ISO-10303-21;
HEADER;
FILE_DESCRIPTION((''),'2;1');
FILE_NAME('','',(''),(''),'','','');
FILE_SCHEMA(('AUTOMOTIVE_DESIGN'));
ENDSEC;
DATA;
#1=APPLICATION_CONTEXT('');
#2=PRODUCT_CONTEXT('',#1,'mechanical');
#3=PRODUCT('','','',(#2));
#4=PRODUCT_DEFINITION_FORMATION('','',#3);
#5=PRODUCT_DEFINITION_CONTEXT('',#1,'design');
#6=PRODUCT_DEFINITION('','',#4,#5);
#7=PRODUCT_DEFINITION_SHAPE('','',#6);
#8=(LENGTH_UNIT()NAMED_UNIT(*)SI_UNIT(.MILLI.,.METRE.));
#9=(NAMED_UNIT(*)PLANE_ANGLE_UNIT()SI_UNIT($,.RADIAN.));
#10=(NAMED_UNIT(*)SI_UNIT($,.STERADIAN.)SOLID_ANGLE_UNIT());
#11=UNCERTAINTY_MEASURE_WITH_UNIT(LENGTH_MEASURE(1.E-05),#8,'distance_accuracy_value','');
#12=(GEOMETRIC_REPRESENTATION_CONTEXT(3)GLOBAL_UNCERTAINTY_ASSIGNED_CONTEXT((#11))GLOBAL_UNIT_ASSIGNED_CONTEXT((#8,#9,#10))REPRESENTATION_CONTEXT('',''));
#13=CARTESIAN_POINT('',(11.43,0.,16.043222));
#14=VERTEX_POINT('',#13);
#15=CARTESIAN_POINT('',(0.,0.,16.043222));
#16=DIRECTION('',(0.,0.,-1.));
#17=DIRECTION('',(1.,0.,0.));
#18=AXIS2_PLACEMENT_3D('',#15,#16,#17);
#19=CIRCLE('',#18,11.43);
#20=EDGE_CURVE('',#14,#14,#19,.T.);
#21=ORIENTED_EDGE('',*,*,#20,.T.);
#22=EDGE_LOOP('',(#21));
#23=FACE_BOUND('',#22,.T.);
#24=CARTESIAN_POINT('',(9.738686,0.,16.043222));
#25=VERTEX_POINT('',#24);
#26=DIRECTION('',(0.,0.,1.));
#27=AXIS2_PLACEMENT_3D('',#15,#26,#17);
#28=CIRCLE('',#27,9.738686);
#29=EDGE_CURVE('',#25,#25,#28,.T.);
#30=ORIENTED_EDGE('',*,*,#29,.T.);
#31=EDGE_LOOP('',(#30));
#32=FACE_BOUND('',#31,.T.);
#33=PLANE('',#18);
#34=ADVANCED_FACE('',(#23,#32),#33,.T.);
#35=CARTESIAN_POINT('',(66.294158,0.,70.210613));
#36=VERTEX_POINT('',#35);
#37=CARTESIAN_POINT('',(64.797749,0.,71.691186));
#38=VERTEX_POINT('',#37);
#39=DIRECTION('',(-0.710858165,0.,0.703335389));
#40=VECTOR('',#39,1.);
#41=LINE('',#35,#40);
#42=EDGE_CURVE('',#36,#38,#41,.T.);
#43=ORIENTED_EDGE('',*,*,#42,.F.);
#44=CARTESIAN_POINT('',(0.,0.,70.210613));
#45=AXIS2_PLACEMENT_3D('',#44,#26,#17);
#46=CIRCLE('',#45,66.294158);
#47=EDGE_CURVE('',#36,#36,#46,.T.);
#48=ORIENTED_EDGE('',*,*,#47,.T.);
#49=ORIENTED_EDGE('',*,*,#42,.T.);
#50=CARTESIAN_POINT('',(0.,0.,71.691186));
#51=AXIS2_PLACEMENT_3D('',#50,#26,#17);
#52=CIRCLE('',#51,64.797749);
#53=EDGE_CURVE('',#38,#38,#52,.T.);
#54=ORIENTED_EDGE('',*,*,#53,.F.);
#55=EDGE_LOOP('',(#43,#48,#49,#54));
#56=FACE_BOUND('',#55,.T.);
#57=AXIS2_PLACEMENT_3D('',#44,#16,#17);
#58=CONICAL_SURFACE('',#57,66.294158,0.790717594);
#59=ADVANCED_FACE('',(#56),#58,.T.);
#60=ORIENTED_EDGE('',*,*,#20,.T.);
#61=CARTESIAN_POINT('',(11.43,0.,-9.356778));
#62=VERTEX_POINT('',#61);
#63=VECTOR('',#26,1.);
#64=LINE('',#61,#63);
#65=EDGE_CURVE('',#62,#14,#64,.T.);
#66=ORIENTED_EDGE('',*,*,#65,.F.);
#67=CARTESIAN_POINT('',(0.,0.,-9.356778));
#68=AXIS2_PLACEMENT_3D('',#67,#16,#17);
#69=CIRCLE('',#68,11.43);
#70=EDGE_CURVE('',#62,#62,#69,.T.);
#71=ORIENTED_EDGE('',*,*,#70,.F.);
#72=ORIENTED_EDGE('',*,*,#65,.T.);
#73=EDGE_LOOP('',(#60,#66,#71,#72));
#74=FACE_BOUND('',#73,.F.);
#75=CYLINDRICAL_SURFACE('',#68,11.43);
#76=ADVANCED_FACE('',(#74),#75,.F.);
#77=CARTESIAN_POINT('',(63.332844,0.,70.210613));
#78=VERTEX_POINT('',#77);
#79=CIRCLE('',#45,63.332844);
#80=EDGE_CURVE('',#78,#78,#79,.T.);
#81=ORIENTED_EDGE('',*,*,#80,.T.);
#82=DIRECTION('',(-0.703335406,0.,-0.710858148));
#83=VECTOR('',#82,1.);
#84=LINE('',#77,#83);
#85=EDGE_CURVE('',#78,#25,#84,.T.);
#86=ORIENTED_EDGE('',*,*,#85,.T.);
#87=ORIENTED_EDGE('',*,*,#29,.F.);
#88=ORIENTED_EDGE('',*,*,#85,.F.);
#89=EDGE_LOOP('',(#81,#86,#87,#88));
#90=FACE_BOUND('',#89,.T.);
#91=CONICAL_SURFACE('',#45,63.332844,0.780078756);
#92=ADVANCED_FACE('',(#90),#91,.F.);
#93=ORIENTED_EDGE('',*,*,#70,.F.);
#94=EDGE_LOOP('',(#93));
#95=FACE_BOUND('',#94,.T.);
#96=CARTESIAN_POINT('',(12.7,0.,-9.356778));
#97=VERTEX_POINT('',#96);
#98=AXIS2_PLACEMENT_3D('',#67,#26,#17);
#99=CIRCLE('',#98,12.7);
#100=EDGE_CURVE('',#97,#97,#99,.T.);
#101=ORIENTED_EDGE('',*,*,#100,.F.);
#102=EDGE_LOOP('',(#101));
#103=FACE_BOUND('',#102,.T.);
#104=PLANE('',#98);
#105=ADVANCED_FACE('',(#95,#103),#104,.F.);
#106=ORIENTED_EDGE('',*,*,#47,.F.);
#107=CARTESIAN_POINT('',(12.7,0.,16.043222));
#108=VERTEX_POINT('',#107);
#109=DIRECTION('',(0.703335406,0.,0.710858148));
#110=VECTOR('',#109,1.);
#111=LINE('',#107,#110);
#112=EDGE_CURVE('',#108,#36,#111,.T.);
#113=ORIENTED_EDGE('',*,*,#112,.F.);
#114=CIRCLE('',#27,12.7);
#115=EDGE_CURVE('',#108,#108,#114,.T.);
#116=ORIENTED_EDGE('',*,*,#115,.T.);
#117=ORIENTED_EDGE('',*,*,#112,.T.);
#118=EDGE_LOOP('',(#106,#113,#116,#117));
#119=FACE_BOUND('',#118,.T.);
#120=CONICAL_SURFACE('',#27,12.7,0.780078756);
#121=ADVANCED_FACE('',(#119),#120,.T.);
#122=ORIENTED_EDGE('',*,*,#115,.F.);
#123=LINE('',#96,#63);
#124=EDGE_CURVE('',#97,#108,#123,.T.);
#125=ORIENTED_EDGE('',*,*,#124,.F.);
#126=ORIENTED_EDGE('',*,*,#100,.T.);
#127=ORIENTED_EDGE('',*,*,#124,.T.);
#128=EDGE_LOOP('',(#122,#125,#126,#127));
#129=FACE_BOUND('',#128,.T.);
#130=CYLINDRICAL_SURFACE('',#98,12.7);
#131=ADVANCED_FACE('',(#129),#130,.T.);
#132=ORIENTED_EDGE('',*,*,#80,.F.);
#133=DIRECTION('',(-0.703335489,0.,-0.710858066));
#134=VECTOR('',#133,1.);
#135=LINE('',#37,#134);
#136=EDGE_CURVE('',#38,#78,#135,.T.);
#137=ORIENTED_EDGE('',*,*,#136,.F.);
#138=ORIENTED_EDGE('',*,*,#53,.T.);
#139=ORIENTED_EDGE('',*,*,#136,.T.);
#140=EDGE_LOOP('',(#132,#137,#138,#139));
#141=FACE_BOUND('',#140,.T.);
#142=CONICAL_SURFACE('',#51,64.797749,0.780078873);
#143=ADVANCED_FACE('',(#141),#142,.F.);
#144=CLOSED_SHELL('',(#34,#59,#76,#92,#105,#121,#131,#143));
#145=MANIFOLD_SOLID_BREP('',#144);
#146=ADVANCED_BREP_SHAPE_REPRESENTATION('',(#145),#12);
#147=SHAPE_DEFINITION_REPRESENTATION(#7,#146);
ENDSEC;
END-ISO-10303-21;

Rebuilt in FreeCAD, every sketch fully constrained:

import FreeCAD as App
import Part
import Sketcher
from FreeCAD import Vector
Q = App.Units.Quantity


def add_polygon(sketch, points):
    """Adds a closed chain of lines whose ends are joined by coincident constraints."""
    first, n = sketch.GeometryCount, len(points)
    for a, b in zip(points, points[1:] + points[:1]):
        sketch.addGeometry(Part.LineSegment(App.Vector(*a, 0), App.Vector(*b, 0)), False)
    for i in range(n):
        sketch.addConstraint(Sketcher.Constraint("Coincident", first + i, 2, first + (i + 1) % n, 1))

doc = App.newDocument("Part")
body = doc.addObject("PartDesign::Body", "Body")

# Sketch on XZ plane
sketch1 = body.newObject("Sketcher::SketchObject", "Sketch")
sketch1.AttachmentSupport = (doc.getObject("XZ_Plane"), [""])
sketch1.MapMode = "FlatFace"
add_polygon(sketch1, [(0, -9.356778), (12.7, -9.356778), (12.7, 16.043222), (66.294158, 70.210613), (64.797749, 71.691186), (63.332844, 70.210613), (9.738686, 16.043222), (0, 16.043222)])  # lines 0-7
sketch1.addConstraint(Sketcher.Constraint("Horizontal", 0))
sketch1.addConstraint(Sketcher.Constraint("Vertical", 1))
sketch1.addConstraint(Sketcher.Constraint("Horizontal", 6))
sketch1.addConstraint(Sketcher.Constraint("Vertical", 7))
sketch1.addConstraint(Sketcher.Constraint("PointOnObject", 6, 2, -2))
sketch1.addConstraint(Sketcher.Constraint("Perpendicular", 2, 3))
sketch1.addConstraint(Sketcher.Constraint("Perpendicular", 3, 4))
sketch1.addConstraint(Sketcher.Constraint("Parallel", 4, 5))
sketch1.addConstraint(Sketcher.Constraint("Horizontal", 2, 2, 4, 2))
sketch1.addConstraint(Sketcher.Constraint("Horizontal", 1, 2, 5, 2))
sketch1.addConstraint(Sketcher.Constraint("DistanceY", 1, 1, 1, 2, Q("1 in")))
sketch1.addConstraint(Sketcher.Constraint("Distance", 2, Q("3 in")))
sketch1.addConstraint(Sketcher.Constraint("DistanceX", 0, 1, 0, 2, Q("0.5 in")))
sketch1.addConstraint(Sketcher.Constraint("Distance", 4, Q("0.0819999 in")))
sketch1.addConstraint(Sketcher.Constraint("DistanceX", 6, 2, 6, 1, 9.738686))
sketch1.addConstraint(Sketcher.Constraint("DistanceY", -1, 1, 1, 2, 16.043222))
revolution = body.newObject("PartDesign::Revolution", "Revolution")
revolution.Profile = sketch1
revolution.ReferenceAxis = (sketch1, ["V_Axis"])
revolution.Angle = 360

# Sketch on XY plane
sketch2 = body.newObject("Sketcher::SketchObject", "Sketch001")
sketch2.AttachmentSupport = (doc.getObject("XY_Plane"), [""])
sketch2.MapMode = "FlatFace"
sketch2.AttachmentOffset = App.Placement(Vector(0, 0, -9.356778), App.Rotation())
sketch2.addGeometry(Part.Circle(Vector(0, 0, 0), Vector(0, 0, 1), 12.7), False)
sketch2.addConstraint(Sketcher.Constraint("Coincident", 0, 3, -1, 1))
sketch2.addConstraint(Sketcher.Constraint("Diameter", 0, Q("1 in")))
pocket1 = body.newObject("PartDesign::Pocket", "Pocket")
pocket1.Profile = sketch2
pocket1.Length = Q("1 in")

# Sketch on XY plane
sketch3 = body.newObject("Sketcher::SketchObject", "Sketch002")
sketch3.AttachmentSupport = (doc.getObject("XY_Plane"), [""])
sketch3.MapMode = "FlatFace"
sketch3.AttachmentOffset = App.Placement(Vector(0, 0, -9.356778), App.Rotation())
sketch3.addGeometry(Part.Circle(Vector(0, 0, 0), Vector(0, 0, 1), 11.43), False)
sketch3.addConstraint(Sketcher.Constraint("Coincident", 0, 3, -1, 1))
sketch3.addConstraint(Sketcher.Constraint("Diameter", 0, Q("0.9 in")))
pocket2 = body.newObject("PartDesign::Pocket", "Pocket001")
pocket2.Profile = sketch3
pocket2.Length = Q("1 in")
pocket2.Reversed = True

doc.recompute()
